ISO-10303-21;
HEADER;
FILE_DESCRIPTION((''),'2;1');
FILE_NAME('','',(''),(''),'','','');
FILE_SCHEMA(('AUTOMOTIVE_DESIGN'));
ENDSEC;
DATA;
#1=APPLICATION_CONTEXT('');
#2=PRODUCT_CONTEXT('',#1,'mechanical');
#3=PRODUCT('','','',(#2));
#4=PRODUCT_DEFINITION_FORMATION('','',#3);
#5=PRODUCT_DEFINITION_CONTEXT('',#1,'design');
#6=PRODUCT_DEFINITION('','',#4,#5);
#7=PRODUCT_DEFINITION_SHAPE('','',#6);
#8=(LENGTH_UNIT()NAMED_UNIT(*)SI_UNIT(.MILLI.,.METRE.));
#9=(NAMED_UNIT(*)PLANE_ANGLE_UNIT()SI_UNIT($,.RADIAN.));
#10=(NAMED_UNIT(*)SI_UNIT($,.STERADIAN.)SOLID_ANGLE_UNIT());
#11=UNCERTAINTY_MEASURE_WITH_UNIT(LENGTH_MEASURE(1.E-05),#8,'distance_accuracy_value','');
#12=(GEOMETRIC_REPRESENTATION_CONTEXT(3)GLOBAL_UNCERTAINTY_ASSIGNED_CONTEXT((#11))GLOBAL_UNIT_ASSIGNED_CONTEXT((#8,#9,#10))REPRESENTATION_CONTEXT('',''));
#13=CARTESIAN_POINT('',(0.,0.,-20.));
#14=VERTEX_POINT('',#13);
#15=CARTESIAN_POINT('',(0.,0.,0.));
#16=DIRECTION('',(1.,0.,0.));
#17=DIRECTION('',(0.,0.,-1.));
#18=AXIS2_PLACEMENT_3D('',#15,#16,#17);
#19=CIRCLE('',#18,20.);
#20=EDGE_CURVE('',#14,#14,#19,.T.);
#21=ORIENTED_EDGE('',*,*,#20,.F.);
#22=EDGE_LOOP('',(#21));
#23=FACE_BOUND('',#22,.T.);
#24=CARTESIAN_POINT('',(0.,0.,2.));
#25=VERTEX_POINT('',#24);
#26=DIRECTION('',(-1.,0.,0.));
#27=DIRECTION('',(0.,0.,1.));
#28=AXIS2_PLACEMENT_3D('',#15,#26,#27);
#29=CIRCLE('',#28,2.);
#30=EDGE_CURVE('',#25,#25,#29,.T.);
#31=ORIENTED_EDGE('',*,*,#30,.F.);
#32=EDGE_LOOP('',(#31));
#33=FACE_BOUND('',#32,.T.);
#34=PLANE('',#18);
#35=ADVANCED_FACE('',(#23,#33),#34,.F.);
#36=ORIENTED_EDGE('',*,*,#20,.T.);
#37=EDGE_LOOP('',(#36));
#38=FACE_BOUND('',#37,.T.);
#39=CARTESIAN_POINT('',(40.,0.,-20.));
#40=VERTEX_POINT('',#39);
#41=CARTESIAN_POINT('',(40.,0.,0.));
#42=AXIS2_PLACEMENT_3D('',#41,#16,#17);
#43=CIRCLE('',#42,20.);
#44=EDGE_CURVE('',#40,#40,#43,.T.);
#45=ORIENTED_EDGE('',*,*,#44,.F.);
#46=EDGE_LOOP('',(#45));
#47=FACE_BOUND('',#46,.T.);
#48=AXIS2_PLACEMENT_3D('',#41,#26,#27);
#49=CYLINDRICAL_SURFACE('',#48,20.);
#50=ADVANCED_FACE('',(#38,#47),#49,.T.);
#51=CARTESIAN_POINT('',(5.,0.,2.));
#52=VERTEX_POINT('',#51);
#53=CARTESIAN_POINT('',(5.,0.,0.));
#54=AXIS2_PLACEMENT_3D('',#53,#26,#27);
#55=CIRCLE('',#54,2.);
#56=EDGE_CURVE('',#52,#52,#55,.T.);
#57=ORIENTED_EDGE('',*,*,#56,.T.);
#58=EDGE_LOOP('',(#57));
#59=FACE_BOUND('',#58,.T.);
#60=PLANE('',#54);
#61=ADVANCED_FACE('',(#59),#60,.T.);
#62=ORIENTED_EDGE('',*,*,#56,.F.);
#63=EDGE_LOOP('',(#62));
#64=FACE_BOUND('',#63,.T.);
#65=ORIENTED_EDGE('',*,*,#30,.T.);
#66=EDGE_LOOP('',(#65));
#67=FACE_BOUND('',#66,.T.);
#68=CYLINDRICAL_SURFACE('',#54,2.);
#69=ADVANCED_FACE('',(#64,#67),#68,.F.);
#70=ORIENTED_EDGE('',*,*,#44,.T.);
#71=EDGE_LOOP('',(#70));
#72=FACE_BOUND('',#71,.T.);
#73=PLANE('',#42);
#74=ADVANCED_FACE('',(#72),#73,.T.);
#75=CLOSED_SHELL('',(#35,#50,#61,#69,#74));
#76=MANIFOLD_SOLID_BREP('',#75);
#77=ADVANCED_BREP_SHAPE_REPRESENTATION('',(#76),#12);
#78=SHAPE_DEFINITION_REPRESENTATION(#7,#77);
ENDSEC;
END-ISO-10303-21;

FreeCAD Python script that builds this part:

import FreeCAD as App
import Part
import Sketcher

V = App.Vector

doc = App.newDocument("Part")
body = doc.addObject("PartDesign::Body", "Body")

# Sketch on YZ plane
sketch1 = body.newObject("Sketcher::SketchObject", "Sketch")
sketch1.AttachmentSupport = (doc.getObject("YZ_Plane"), [""])
sketch1.MapMode = "FlatFace"
sketch1.addGeometry(Part.Circle(V(0, 0, 0), V(0, 0, 1), 20), False)
sketch1.addConstraint([
    Sketcher.Constraint("Coincident", 0, 3, -1, 1),
    Sketcher.Constraint("Diameter", 0, 40.0),
])
pad1 = body.newObject("PartDesign::Pad", "Pad")
pad1.Profile = sketch1
pad1.Length = 40

# Sketch on YZ plane
sketch2 = body.newObject("Sketcher::SketchObject", "Sketch001")
sketch2.AttachmentSupport = (doc.getObject("YZ_Plane"), [""])
sketch2.MapMode = "FlatFace"
sketch2.addGeometry(Part.Circle(V(0, 0, 0), V(0, 0, 1), 2), False)
sketch2.addConstraint([
    Sketcher.Constraint("Coincident", 0, 3, -1, 1),
    Sketcher.Constraint("Diameter", 0, 4.0),
])
pocket1 = body.newObject("PartDesign::Pocket", "Pocket")
pocket1.Profile = sketch2
pocket1.Length = 5
pocket1.Reversed = True

doc.recompute()
